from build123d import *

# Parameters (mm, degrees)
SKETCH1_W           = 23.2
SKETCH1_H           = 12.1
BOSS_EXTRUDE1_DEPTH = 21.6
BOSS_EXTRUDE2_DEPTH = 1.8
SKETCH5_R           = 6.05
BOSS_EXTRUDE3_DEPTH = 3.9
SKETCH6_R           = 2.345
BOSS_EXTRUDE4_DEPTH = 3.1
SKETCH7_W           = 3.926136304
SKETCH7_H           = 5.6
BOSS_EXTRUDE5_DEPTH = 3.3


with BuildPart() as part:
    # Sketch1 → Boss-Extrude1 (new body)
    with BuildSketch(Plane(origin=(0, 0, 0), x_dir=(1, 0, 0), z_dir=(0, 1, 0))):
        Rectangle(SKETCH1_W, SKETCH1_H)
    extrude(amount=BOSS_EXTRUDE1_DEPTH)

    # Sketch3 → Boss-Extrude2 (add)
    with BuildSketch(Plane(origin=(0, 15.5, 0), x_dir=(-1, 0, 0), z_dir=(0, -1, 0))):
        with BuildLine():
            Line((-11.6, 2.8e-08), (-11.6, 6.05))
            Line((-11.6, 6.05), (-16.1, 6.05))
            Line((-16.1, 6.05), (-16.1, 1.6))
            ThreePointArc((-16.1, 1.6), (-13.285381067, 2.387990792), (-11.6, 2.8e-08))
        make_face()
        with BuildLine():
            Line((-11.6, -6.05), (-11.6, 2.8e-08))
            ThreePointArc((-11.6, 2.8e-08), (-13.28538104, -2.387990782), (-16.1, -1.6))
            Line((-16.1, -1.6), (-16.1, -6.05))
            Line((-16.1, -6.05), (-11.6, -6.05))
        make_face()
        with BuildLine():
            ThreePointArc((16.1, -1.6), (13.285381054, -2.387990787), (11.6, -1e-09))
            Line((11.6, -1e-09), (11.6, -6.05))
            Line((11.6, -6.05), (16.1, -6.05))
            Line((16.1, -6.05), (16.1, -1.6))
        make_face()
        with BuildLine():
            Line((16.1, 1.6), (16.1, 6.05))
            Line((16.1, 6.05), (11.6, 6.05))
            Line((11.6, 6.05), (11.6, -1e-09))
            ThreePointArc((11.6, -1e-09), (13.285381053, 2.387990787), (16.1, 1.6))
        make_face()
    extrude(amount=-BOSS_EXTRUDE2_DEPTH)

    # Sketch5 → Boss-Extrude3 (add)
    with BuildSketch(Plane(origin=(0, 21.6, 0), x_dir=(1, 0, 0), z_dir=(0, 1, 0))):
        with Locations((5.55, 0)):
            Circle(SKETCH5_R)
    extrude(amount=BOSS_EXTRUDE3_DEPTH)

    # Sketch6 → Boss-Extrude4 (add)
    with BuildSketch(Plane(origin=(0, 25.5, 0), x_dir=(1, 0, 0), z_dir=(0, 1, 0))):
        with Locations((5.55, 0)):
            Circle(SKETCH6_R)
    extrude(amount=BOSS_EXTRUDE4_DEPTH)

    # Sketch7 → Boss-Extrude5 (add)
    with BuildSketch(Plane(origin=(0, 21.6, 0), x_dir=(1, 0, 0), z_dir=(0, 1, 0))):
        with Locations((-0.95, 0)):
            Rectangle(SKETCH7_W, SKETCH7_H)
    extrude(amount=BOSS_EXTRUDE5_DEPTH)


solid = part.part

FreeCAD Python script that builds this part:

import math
import FreeCAD as App
import Part
import Sketcher
from FreeCAD import Vector
Q = App.Units.Quantity

doc = App.newDocument("Part")
body = doc.addObject("PartDesign::Body", "Body")

# Sketch on XZ plane
sketch1 = body.newObject("Sketcher::SketchObject", "Sketch")
sketch1.AttachmentSupport = (doc.getObject("XZ_Plane"), [""])
sketch1.MapMode = "FlatFace"
sketch1.addGeometry([
    Part.LineSegment(Vector(-12, -6, 0), Vector(-12, 6, 0)),
    Part.LineSegment(Vector(-12, 6, 0), Vector(12, 6, 0)),
    Part.LineSegment(Vector(12, 6, 0), Vector(12, -6, 0)),
    Part.LineSegment(Vector(12, -6, 0), Vector(-12, -6, 0)),
], False)
sketch1.addConstraint([
    Sketcher.Constraint("Coincident", 0, 2, 1, 1),
    Sketcher.Constraint("Coincident", 1, 2, 2, 1),
    Sketcher.Constraint("Coincident", 2, 2, 3, 1),
    Sketcher.Constraint("Coincident", 3, 2, 0, 1),
    Sketcher.Constraint("Vertical", 0),
    Sketcher.Constraint("Horizontal", 1),
    Sketcher.Constraint("Vertical", 2),
    Sketcher.Constraint("Horizontal", 3),
    Sketcher.Constraint("Symmetric", 0, 2, 2, 2, -1, 1),
    Sketcher.Constraint("DistanceX", 1, 1, 1, 2, Q("23.2 mm")),
    Sketcher.Constraint("DistanceY", 0, 1, 0, 2, Q("12.1 mm")),
])
pad1 = body.newObject("PartDesign::Pad", "Pad")
pad1.Profile = sketch1
pad1.Length = 21.6
pad1.Reversed = True

# Sketch on XZ plane
sketch2 = body.newObject("Sketcher::SketchObject", "Sketch001")
sketch2.AttachmentSupport = (doc.getObject("XZ_Plane"), [""])
sketch2.MapMode = "FlatFace"
sketch2.AttachmentOffset = App.Placement(Vector(0, 0, -15.5), App.Rotation())
sketch2.addGeometry([
    Part.LineSegment(Vector(11.6, 0, 0), Vector(11.6, -6, 0)),  # 0
    Part.LineSegment(Vector(11.6, -6, 0), Vector(16.1, -6, 0)),  # 1
    Part.LineSegment(Vector(16.1, -6, 0), Vector(16.1, -1.6, 0)),  # 2
    Part.ArcOfCircle(Part.Circle(Vector(14.1, 0, 0), Vector(0, 0, 1), 2.5), math.radians(-180), math.radians(-39)),  # 3
    Part.LineSegment(Vector(11.6, 6, 0), Vector(11.6, 0, 0)),  # 4
    Part.ArcOfCircle(Part.Circle(Vector(14.1, 0, 0), Vector(0, 0, 1), 2.5), math.radians(39), math.radians(180)),  # 5
    Part.LineSegment(Vector(16.1, 1.6, 0), Vector(16.1, 6, 0)),  # 6
    Part.LineSegment(Vector(16.1, 6, 0), Vector(11.6, 6, 0)),  # 7
    Part.ArcOfCircle(Part.Circle(Vector(-14.1, 0, 0), Vector(0, 0, 1), 2.5), math.radians(0), math.radians(141)),  # 8
    Part.LineSegment(Vector(-11.6, 0, 0), Vector(-11.6, 6, 0)),  # 9
    Part.LineSegment(Vector(-11.6, 6, 0), Vector(-16.1, 6, 0)),  # 10
    Part.LineSegment(Vector(-16.1, 6, 0), Vector(-16.1, 1.6, 0)),  # 11
    Part.LineSegment(Vector(-16.1, -1.6, 0), Vector(-16.1, -6, 0)),  # 12
    Part.LineSegment(Vector(-16.1, -6, 0), Vector(-11.6, -6, 0)),  # 13
    Part.LineSegment(Vector(-11.6, -6, 0), Vector(-11.6, 0, 0)),  # 14
    Part.ArcOfCircle(Part.Circle(Vector(-14.1, 0, 0), Vector(0, 0, 1), 2.5), math.radians(-141), math.radians(0)),  # 15
], False)
sketch2.addConstraint([
    Sketcher.Constraint("Coincident", 0, 2, 1, 1),
    Sketcher.Constraint("Coincident", 1, 2, 2, 1),
    Sketcher.Constraint("Coincident", 2, 2, 3, 2),
    Sketcher.Constraint("Tangent", 3, 1, 0, 1),
    Sketcher.Constraint("Tangent", 4, 2, 5, 2),
    Sketcher.Constraint("Coincident", 5, 1, 6, 1),
    Sketcher.Constraint("Coincident", 6, 2, 7, 1),
    Sketcher.Constraint("Coincident", 7, 2, 4, 1),
    Sketcher.Constraint("Tangent", 8, 1, 9, 1),
    Sketcher.Constraint("Coincident", 9, 2, 10, 1),
    Sketcher.Constraint("Coincident", 10, 2, 11, 1),
    Sketcher.Constraint("Coincident", 11, 2, 8, 2),
    Sketcher.Constraint("Coincident", 12, 2, 13, 1),
    Sketcher.Constraint("Coincident", 13, 2, 14, 1),
    Sketcher.Constraint("Tangent", 14, 2, 15, 2),
    Sketcher.Constraint("Coincident", 15, 1, 12, 1),
    Sketcher.Constraint("Vertical", 0),
    Sketcher.Constraint("Horizontal", 1),
    Sketcher.Constraint("Vertical", 2),
    Sketcher.Constraint("Vertical", 4),
    Sketcher.Constraint("Vertical", 6),
    Sketcher.Constraint("Horizontal", 7),
    Sketcher.Constraint("Vertical", 9),
    Sketcher.Constraint("Horizontal", 10),
    Sketcher.Constraint("Vertical", 11),
    Sketcher.Constraint("Vertical", 12),
    Sketcher.Constraint("Horizontal", 13),
    Sketcher.Constraint("Vertical", 14),
    Sketcher.Constraint("Coincident", 5, 3, 3, 3),
    Sketcher.Constraint("Coincident", 15, 3, 8, 3),
    Sketcher.Constraint("Equal", 3, 5),
    Sketcher.Constraint("Equal", 5, 8),
    Sketcher.Constraint("Equal", 8, 15),
    Sketcher.Constraint("Symmetric", 3, 3, 8, 3, -1, 1),
    Sketcher.Constraint("Symmetric", 1, 2, 10, 2, -1, 1),
    Sketcher.Constraint("Symmetric", 6, 2, 12, 2, -1, 1),
    Sketcher.Constraint("Symmetric", 6, 2, 10, 2, -2),
    Sketcher.Constraint("PointOnObject", 3, 3, -1),
    Sketcher.Constraint("DistanceX", 1, 1, 1, 2, Q("4.5 mm")),
    Sketcher.Constraint("DistanceY", 0, 2, 0, 1, Q("6.05 mm")),
    Sketcher.Constraint("DistanceY", 2, 1, 2, 2, Q("4.45 mm")),
    Sketcher.Constraint("DistanceX", -1, 1, 0, 2, Q("11.6 mm")),
])
pad2 = body.newObject("PartDesign::Pad", "Pad001")
pad2.Profile = sketch2
pad2.Length = 1.8
pad2.Reversed = True

# Sketch on XZ plane
sketch3 = body.newObject("Sketcher::SketchObject", "Sketch002")
sketch3.AttachmentSupport = (doc.getObject("XZ_Plane"), [""])
sketch3.MapMode = "FlatFace"
sketch3.AttachmentOffset = App.Placement(Vector(0, 0, -21.6), App.Rotation())
sketch3.addGeometry(Part.Circle(Vector(6, 0, 0), Vector(0, 0, 1), 6), False)
sketch3.addConstraint([
    Sketcher.Constraint("PointOnObject", 0, 3, -1),
    Sketcher.Constraint("Diameter", 0, Q("12.1 mm")),
    Sketcher.Constraint("DistanceX", -1, 1, 0, 3, Q("5.55 mm")),
])
pad3 = body.newObject("PartDesign::Pad", "Pad002")
pad3.Profile = sketch3
pad3.Length = 3.9
pad3.Reversed = True

# Sketch on XZ plane
sketch4 = body.newObject("Sketcher::SketchObject", "Sketch003")
sketch4.AttachmentSupport = (doc.getObject("XZ_Plane"), [""])
sketch4.MapMode = "FlatFace"
sketch4.AttachmentOffset = App.Placement(Vector(0, 0, -25.5), App.Rotation())
sketch4.addGeometry(Part.Circle(Vector(5.5, 0, 0), Vector(0, 0, 1), 2.3), False)
sketch4.addConstraint([
    Sketcher.Constraint("PointOnObject", 0, 3, -1),
    Sketcher.Constraint("Diameter", 0, Q("4.69 mm")),
    Sketcher.Constraint("DistanceX", -1, 1, 0, 3, Q("5.55 mm")),
])
pad4 = body.newObject("PartDesign::Pad", "Pad003")
pad4.Profile = sketch4
pad4.Length = 3.1
pad4.Reversed = True

# Sketch on XZ plane
sketch5 = body.newObject("Sketcher::SketchObject", "Sketch004")
sketch5.AttachmentSupport = (doc.getObject("XZ_Plane"), [""])
sketch5.MapMode = "FlatFace"
sketch5.AttachmentOffset = App.Placement(Vector(0, 0, -21.6), App.Rotation())
sketch5.addGeometry([
    Part.LineSegment(Vector(-2.9, -2.8, 0), Vector(-2.9, 2.8, 0)),
    Part.LineSegment(Vector(-2.9, 2.8, 0), Vector(1, 2.8, 0)),
    Part.LineSegment(Vector(1, 2.8, 0), Vector(1, -2.8, 0)),
    Part.LineSegment(Vector(1, -2.8, 0), Vector(-2.9, -2.8, 0)),
], False)
sketch5.addConstraint([
    Sketcher.Constraint("Coincident", 0, 2, 1, 1),
    Sketcher.Constraint("Coincident", 1, 2, 2, 1),
    Sketcher.Constraint("Coincident", 2, 2, 3, 1),
    Sketcher.Constraint("Coincident", 3, 2, 0, 1),
    Sketcher.Constraint("Vertical", 0),
    Sketcher.Constraint("Horizontal", 1),
    Sketcher.Constraint("Vertical", 2),
    Sketcher.Constraint("Horizontal", 3),
    Sketcher.Constraint("DistanceY", 0, 1, 0, 2, Q("5.6 mm")),
    Sketcher.Constraint("DistanceY", -1, 1, 0, 2, Q("2.8 mm")),
    Sketcher.Constraint("DistanceX", 1, 1, 1, 2, Q("3.926136 mm")),
    Sketcher.Constraint("DistanceX", 0, 2, -1, 1, Q("2.913068 mm")),
])
pad5 = body.newObject("PartDesign::Pad", "Pad004")
pad5.Profile = sketch5
pad5.Length = 3.3
pad5.Reversed = True

doc.recompute()
